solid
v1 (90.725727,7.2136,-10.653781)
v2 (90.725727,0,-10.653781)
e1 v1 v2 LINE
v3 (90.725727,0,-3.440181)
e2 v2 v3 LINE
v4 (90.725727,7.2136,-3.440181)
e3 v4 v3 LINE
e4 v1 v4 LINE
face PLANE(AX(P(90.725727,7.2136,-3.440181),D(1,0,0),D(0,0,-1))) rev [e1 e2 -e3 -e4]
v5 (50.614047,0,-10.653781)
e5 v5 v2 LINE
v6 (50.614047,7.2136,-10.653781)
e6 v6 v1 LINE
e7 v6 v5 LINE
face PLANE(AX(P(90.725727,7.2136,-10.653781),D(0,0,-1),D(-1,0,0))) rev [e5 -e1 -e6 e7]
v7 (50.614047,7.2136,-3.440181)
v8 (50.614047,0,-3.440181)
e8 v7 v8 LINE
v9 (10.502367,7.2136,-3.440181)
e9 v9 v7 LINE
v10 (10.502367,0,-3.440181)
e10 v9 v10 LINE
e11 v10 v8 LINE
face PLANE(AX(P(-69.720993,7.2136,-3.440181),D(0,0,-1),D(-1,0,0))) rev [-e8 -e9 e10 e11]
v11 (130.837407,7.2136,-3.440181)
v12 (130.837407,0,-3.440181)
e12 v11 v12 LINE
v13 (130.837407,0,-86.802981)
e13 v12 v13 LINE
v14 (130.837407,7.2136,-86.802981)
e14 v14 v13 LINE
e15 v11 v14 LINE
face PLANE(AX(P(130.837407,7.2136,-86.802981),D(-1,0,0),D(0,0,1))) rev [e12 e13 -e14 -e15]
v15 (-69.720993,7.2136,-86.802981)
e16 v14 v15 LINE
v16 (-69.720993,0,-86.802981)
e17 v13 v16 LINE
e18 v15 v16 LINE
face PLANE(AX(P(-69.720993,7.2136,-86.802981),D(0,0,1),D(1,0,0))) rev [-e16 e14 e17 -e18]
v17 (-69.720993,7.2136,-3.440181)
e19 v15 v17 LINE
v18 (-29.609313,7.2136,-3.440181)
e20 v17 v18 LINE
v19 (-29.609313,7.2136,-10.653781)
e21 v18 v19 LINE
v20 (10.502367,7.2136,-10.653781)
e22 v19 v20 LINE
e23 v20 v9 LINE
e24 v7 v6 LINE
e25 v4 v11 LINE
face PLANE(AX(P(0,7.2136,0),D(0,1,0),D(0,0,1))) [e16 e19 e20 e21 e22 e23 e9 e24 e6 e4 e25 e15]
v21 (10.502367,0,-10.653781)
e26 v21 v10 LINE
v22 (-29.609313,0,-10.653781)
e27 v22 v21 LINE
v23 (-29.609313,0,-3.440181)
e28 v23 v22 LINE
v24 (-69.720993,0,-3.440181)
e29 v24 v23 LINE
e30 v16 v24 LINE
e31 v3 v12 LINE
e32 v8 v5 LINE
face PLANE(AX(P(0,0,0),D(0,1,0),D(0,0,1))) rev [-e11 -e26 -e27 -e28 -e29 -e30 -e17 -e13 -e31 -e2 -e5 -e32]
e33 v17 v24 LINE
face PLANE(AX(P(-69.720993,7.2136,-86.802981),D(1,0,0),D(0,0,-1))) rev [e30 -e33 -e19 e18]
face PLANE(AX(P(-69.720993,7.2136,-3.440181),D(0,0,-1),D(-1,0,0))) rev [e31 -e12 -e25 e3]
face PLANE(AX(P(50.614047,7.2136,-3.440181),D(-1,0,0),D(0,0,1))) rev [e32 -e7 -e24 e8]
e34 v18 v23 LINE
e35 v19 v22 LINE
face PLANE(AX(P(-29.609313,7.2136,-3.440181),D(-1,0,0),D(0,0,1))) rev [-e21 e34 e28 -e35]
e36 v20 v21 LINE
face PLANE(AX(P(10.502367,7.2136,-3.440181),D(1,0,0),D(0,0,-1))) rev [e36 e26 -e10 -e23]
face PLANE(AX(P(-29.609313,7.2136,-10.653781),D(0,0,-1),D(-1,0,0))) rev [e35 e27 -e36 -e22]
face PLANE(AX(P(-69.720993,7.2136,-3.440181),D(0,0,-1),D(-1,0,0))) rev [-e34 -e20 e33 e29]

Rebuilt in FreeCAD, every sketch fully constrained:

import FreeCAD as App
import Part
import Sketcher
from FreeCAD import Vector
Q = App.Units.Quantity


def add_polygon(sketch, points):
    """Adds a closed chain of lines whose ends are joined by coincident constraints."""
    first, n = sketch.GeometryCount, len(points)
    for a, b in zip(points, points[1:] + points[:1]):
        sketch.addGeometry(Part.LineSegment(App.Vector(*a, 0), App.Vector(*b, 0)), False)
    for i in range(n):
        sketch.addConstraint(Sketcher.Constraint("Coincident", first + i, 2, first + (i + 1) % n, 1))

doc = App.newDocument("Part")
params = doc.addObject("Spreadsheet::Sheet", "Params")
for row, (alias, value) in enumerate([
    ("sketch1_width", "7.896 in"),
    ("sketch1_height", "3.282 in"),
    ("pad1_length", "0.284 in"),
    ("sketch2_height", "0.284 in"),
], start=1):
    params.set(f"A{row}", alias)
    params.set(f"B{row}", "=" + value)
    params.setAlias(f"B{row}", alias)

body = doc.addObject("PartDesign::Body", "Body")

# Sketch on XZ plane
sketch1 = doc.addObject("Sketcher::SketchObject", "Sketch")
body.addObject(sketch1)
sketch1.AttachmentSupport = (doc.XZ_Plane, [""])
sketch1.MapMode = "FlatFace"
add_polygon(sketch1, [(-70, -87), (-70, -3), (131, -3), (131, -87)])  # lines 0-3
sketch1.addConstraint([
    Sketcher.Constraint("Vertical", 0),
    Sketcher.Constraint("Horizontal", 1),
    Sketcher.Constraint("Vertical", 2),
    Sketcher.Constraint("Horizontal", 3),
    Sketcher.Constraint("DistanceX", 1, 1, 1, 2, Q("7.896 in")),
    Sketcher.Constraint("DistanceY", 0, 1, 0, 2, Q("3.282 in")),
    Sketcher.Constraint("DistanceY", 0, 2, -1, 1, Q("3.440181 mm")),
    Sketcher.Constraint("DistanceX", 0, 2, -1, 1, Q("69.720993 mm")),
])
sketch1.setExpression("Constraints[8]", "Params.sketch1_width")
sketch1.setExpression("Constraints[9]", "Params.sketch1_height")
pad1 = doc.addObject("PartDesign::Pad", "Pad")
body.addObject(pad1)
pad1.Profile = sketch1
pad1.setExpression("Length", "Params.pad1_length")
pad1.Reversed = True

# Sketch on XZ plane
sketch2 = doc.addObject("Sketcher::SketchObject", "Sketch001")
body.addObject(sketch2)
sketch2.AttachmentSupport = (doc.XZ_Plane, [""])
sketch2.MapMode = "FlatFace"
add_polygon(sketch2, [(51, -3), (51, -11), (91, -11), (91, -3)])  # lines 0-3
add_polygon(sketch2, [(-30, -3), (-30, -11), (11, -11), (11, -3)])  # lines 4-7
sketch2.addConstraint([
    Sketcher.Constraint("Vertical", 0),
    Sketcher.Constraint("Horizontal", 1),
    Sketcher.Constraint("Vertical", 2),
    Sketcher.Constraint("Horizontal", 3),
    Sketcher.Constraint("Vertical", 4),
    Sketcher.Constraint("Horizontal", 5),
    Sketcher.Constraint("Vertical", 6),
    Sketcher.Constraint("Horizontal", 7),
    Sketcher.Constraint("Horizontal", 1, 2, 4, 2),
    Sketcher.Constraint("Horizontal", 3, 2, 6, 2),
    Sketcher.Constraint("Equal", 3, 5),
    Sketcher.Constraint("DistanceY", 0, 2, 0, 1, Q("0.284 in")),
    Sketcher.Constraint("DistanceX", 1, 1, 1, 2, Q("1.5792 in")),
    Sketcher.Constraint("DistanceX", 4, 2, 0, 2, Q("3.1584 in")),
    Sketcher.Constraint("DistanceY", 0, 2, -1, 1, Q("10.653781 mm")),
    Sketcher.Constraint("DistanceX", -1, 1, 0, 2, Q("50.614047 mm")),
])
sketch2.setExpression("Constraints[19]", "Params.sketch2_height")
pocket1 = doc.addObject("PartDesign::Pocket", "Pocket")
body.addObject(pocket1)
pocket1.Profile = sketch2
pocket1.Type = "ThroughAll"

doc.recompute()
